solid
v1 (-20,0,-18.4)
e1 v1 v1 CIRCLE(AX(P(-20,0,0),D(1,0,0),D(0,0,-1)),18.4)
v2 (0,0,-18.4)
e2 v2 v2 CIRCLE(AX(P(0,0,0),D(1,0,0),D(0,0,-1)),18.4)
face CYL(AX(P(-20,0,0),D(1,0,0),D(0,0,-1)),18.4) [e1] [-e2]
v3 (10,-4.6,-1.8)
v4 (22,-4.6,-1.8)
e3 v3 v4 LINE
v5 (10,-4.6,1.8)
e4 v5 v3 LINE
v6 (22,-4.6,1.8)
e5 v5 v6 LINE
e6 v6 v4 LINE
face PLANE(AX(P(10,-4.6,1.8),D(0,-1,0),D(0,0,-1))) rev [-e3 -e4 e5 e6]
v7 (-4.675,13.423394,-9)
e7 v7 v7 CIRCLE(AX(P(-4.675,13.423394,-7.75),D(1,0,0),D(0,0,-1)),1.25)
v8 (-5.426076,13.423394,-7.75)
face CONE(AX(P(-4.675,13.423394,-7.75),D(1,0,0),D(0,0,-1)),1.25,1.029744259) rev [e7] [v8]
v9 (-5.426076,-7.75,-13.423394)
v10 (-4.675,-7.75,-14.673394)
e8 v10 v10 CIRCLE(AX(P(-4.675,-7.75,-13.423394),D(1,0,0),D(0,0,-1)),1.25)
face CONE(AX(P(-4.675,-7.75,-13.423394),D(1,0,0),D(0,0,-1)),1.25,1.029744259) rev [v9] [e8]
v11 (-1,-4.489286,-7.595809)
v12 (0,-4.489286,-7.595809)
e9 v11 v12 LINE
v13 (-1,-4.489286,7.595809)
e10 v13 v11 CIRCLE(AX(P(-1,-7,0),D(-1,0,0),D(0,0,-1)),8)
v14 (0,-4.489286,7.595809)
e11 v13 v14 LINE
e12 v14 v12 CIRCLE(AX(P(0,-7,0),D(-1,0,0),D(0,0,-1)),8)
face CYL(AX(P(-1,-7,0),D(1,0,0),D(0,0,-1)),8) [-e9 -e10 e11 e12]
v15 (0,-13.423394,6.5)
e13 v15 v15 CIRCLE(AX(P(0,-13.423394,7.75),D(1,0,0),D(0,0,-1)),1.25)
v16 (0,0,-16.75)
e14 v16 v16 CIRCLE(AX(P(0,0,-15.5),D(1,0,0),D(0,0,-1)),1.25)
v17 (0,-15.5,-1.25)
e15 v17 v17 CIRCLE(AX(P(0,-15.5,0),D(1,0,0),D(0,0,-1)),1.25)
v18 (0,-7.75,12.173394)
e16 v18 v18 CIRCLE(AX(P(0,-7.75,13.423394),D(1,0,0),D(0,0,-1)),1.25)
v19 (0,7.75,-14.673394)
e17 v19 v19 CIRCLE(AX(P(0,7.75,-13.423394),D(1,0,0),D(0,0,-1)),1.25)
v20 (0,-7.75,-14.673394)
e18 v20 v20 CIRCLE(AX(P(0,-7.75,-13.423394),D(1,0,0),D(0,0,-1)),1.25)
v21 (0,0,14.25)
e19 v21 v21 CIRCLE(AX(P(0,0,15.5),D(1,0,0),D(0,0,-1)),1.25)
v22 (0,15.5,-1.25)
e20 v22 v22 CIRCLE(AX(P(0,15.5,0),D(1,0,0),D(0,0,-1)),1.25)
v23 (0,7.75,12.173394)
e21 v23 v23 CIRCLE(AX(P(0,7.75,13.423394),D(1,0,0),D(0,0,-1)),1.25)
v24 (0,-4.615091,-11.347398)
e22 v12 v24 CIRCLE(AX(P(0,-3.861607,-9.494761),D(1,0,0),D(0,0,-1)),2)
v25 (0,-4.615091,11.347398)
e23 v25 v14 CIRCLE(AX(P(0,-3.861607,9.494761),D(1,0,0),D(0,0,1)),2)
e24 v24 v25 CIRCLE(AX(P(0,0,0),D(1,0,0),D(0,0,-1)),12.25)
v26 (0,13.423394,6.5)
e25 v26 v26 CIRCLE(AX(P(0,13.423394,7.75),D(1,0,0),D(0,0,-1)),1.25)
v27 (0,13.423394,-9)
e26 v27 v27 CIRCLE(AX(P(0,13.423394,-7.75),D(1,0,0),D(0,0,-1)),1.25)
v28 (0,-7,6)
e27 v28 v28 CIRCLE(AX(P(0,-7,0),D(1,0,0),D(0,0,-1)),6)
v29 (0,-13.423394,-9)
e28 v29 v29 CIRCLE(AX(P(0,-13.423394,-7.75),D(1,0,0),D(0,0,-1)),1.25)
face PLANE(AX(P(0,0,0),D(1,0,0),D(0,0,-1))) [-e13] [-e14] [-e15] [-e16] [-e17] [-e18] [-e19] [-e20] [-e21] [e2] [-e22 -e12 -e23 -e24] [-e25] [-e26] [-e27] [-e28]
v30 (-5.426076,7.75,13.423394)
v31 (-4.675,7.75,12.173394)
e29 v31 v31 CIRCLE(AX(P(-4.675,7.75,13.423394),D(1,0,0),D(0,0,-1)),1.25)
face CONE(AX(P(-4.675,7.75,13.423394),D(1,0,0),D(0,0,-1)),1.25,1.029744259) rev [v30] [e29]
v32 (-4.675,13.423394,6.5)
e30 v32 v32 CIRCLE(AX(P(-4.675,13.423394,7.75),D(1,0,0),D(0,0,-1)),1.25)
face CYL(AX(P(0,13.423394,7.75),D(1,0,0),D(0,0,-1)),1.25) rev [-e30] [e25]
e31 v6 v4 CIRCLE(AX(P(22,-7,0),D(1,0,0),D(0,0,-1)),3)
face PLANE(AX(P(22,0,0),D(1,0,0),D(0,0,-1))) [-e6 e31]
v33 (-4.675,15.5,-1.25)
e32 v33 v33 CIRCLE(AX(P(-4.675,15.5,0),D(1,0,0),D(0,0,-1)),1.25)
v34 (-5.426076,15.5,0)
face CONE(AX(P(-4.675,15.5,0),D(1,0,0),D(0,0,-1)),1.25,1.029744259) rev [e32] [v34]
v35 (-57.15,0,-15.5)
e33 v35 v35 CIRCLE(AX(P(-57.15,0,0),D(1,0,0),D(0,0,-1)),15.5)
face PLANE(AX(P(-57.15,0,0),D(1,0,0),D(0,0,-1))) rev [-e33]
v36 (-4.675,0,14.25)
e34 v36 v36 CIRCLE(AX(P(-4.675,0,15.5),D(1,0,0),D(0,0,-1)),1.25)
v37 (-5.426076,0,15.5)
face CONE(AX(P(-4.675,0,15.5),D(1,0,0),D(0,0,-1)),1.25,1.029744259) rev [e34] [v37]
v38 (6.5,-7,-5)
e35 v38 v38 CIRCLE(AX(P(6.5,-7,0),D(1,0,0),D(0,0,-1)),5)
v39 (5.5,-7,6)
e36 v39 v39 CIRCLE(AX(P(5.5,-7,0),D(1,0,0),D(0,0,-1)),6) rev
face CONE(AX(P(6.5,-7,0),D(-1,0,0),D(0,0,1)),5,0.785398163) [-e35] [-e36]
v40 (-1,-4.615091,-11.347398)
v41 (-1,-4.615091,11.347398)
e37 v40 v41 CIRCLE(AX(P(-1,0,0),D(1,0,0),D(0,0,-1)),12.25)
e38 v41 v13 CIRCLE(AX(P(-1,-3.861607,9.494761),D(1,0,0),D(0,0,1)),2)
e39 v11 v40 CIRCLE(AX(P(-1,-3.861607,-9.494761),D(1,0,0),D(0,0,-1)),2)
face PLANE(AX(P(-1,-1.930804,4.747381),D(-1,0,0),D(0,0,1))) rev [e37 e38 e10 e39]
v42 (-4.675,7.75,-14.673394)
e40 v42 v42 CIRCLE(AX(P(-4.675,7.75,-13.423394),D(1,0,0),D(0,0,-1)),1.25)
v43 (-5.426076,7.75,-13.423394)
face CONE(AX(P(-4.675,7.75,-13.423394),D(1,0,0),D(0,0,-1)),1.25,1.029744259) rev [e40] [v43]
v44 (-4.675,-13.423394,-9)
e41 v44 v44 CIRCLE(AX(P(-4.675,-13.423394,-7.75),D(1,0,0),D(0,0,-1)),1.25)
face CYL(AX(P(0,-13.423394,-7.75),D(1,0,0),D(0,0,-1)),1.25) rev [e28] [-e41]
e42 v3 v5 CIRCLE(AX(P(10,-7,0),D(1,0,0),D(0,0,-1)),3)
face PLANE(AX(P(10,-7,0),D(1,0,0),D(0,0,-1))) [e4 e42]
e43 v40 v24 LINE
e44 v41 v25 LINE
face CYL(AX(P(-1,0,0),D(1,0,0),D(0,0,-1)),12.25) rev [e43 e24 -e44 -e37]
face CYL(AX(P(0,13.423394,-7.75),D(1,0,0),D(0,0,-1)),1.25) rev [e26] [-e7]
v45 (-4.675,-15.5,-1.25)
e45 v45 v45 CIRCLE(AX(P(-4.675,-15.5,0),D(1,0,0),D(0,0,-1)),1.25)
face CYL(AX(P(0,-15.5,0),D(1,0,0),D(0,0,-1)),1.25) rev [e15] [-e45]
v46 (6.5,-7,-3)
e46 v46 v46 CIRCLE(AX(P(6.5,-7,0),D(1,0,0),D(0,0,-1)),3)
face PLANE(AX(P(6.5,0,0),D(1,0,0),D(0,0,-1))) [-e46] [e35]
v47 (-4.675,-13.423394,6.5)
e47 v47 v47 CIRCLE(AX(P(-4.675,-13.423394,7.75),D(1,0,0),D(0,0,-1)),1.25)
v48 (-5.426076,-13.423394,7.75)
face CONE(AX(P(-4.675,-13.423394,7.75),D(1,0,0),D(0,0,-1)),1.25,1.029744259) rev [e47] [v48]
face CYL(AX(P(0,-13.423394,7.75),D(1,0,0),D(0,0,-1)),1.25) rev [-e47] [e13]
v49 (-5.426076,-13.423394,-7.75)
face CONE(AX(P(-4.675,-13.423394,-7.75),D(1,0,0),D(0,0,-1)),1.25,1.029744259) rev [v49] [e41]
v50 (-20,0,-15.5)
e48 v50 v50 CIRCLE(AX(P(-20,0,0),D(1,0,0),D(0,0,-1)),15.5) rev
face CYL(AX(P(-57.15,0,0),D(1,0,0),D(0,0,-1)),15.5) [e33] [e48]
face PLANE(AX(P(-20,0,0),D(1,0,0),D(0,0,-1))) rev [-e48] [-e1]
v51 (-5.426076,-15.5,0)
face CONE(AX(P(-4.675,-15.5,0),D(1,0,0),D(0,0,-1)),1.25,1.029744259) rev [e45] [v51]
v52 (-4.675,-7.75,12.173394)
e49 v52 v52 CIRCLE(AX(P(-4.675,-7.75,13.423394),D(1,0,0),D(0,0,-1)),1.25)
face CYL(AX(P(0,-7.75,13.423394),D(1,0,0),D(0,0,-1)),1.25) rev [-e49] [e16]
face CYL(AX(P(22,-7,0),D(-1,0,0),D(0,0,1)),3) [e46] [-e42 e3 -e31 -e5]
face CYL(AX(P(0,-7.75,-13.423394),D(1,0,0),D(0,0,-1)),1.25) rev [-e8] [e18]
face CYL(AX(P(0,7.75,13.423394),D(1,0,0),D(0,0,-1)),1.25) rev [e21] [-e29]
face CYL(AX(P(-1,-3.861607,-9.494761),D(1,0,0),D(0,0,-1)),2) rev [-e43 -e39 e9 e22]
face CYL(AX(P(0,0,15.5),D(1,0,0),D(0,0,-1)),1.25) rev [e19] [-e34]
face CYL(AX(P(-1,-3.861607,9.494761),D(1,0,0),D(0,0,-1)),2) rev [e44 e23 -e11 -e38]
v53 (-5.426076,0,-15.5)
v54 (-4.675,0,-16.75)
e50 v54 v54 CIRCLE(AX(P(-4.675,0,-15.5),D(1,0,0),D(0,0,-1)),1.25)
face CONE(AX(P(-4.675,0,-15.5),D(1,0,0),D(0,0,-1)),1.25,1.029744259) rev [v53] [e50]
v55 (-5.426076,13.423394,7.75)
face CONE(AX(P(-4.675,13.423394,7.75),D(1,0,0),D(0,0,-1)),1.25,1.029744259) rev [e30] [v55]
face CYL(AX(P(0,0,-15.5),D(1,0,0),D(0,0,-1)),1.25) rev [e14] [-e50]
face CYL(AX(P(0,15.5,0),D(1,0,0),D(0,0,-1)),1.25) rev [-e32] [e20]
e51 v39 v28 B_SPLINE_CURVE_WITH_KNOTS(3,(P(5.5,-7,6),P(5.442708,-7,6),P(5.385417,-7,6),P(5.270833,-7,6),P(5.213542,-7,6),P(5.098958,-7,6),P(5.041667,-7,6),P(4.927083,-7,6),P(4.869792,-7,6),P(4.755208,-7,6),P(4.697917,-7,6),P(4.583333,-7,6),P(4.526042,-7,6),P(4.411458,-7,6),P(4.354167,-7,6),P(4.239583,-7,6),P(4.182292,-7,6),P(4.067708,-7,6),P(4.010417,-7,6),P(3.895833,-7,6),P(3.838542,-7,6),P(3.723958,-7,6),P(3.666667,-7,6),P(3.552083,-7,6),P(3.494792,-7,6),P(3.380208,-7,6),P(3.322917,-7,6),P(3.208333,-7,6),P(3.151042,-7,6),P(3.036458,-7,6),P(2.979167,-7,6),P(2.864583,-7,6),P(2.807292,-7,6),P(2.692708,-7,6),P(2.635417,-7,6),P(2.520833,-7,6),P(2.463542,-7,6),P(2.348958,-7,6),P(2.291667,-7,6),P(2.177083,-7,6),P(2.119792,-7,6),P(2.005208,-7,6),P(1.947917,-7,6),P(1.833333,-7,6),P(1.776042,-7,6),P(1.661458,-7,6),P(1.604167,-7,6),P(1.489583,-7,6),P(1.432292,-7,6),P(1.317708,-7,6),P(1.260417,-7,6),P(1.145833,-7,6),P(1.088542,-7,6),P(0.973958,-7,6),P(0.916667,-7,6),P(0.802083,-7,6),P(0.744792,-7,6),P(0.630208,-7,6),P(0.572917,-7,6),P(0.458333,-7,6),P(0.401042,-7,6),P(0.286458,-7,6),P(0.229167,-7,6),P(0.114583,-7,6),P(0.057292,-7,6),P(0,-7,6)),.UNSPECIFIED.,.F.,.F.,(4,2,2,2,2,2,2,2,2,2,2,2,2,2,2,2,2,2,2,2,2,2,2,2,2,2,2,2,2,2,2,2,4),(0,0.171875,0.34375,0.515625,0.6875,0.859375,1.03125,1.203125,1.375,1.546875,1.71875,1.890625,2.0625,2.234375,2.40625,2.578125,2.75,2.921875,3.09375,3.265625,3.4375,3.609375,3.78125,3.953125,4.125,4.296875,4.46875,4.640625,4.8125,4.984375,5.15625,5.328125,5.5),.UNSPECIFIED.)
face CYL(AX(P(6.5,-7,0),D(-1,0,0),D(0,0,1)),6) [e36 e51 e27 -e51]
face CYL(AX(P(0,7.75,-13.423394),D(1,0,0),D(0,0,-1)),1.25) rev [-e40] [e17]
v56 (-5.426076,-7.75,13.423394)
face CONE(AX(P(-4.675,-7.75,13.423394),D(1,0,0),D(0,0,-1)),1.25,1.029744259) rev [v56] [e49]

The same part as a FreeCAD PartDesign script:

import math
import FreeCAD as App
import Part
import Sketcher
from FreeCAD import Vector
Q = App.Units.Quantity


def edges_at(feature, points):
    """Names of the edges that pass closest to the given points."""
    edges = feature.Shape.Edges
    near = lambda p: min(range(len(edges)), key=lambda i: edges[i].distToShape(Part.Vertex(*p))[0])
    return sorted({f"Edge{near(p) + 1}" for p in points})

doc = App.newDocument("Part")
params = doc.addObject("Spreadsheet::Sheet", "Params")
for row, (alias, value) in enumerate([
    ("sketch1_diameter", "12 mm"),
    ("sketch1_diameter2", "6 mm"),
    ("pad1_length", "6.5 mm"),
    ("sketch2_diameter", "6 mm"),
    ("pad2_length", "22 mm"),
    ("sketch3_diameter", "36.8 mm"),
    ("pad3_length", "20 mm"),
    ("sketch4_diameter", "31 mm"),
    ("pad4_length", "57.15 mm"),
    ("sketch5_diameter", "2.5 mm"),
    ("hole_diameter", "2.5 mm"),
    ("hole_depth", "4.675 mm"),
    ("sketch6_radius", "2 mm"),
    ("sketch6_radius2", "8 mm"),
    ("sketch6_radius3", "12.25 mm"),
    ("pocket1_length", "1 mm"),
    ("sketch7_radius", "3 mm"),
    ("sketch7_height", "3.6 mm"),
    ("pocket2_length", "12 mm"),
    ("chamfer_size", "1 mm"),
], start=1):
    params.set(f"A{row}", alias)
    params.set(f"B{row}", "=" + value)
    params.setAlias(f"B{row}", alias)

body = doc.addObject("PartDesign::Body", "Body")

# Sketch on YZ plane
sketch1 = doc.addObject("Sketcher::SketchObject", "Sketch")
body.addObject(sketch1)
sketch1.AttachmentSupport = (doc.YZ_Plane, [""])
sketch1.MapMode = "FlatFace"
sketch1.addGeometry(Part.Circle(Vector(-7, 0, 0), Vector(0, 0, 1), 6), False)
sketch1.addGeometry(Part.Circle(Vector(-7, 0, 0), Vector(0, 0, 1), 3), False)
sketch1.addConstraint(Sketcher.Constraint("Coincident", 1, 3, 0, 3))
sketch1.addConstraint(Sketcher.Constraint("PointOnObject", 0, 3, -1))
sketch1.addConstraint(Sketcher.Constraint("Diameter", 0, Q("12 mm")))
sketch1.addConstraint(Sketcher.Constraint("Diameter", 1, Q("6 mm")))
sketch1.addConstraint(Sketcher.Constraint("DistanceX", 0, 3, -1, 1, Q("7 mm")))
sketch1.setExpression("Constraints[2]", "Params.sketch1_diameter")
sketch1.setExpression("Constraints[3]", "Params.sketch1_diameter2")
pad1 = doc.addObject("PartDesign::Pad", "Pad")
body.addObject(pad1)
pad1.Profile = sketch1
pad1.setExpression("Length", "Params.pad1_length")

# Sketch on YZ plane
sketch2 = doc.addObject("Sketcher::SketchObject", "Sketch001")
body.addObject(sketch2)
sketch2.AttachmentSupport = (doc.YZ_Plane, [""])
sketch2.MapMode = "FlatFace"
sketch2.addGeometry(Part.Circle(Vector(-7, 0, 0), Vector(0, 0, 1), 3), False)
sketch2.addConstraint(Sketcher.Constraint("PointOnObject", 0, 3, -1))
sketch2.addConstraint(Sketcher.Constraint("Diameter", 0, Q("6 mm")))
sketch2.addConstraint(Sketcher.Constraint("DistanceX", 0, 3, -1, 1, Q("7 mm")))
sketch2.setExpression("Constraints[1]", "Params.sketch2_diameter")
pad2 = doc.addObject("PartDesign::Pad", "Pad001")
body.addObject(pad2)
pad2.Profile = sketch2
pad2.setExpression("Length", "Params.pad2_length")
body2 = doc.addObject("PartDesign::Body", "Body001")

# Sketch on YZ plane
sketch3 = doc.addObject("Sketcher::SketchObject", "Sketch002")
body2.addObject(sketch3)
sketch3.AttachmentSupport = (doc.getObject("YZ_Plane001"), [""])
sketch3.MapMode = "FlatFace"
sketch3.addGeometry(Part.Circle(Vector(0, 0, 0), Vector(0, 0, 1), 18), False)
sketch3.addConstraint(Sketcher.Constraint("Coincident", 0, 3, -1, 1))
sketch3.addConstraint(Sketcher.Constraint("Diameter", 0, Q("36.8 mm")))
sketch3.setExpression("Constraints[1]", "Params.sketch3_diameter")
pad3 = doc.addObject("PartDesign::Pad", "Pad002")
body2.addObject(pad3)
pad3.Profile = sketch3
pad3.setExpression("Length", "Params.pad3_length")
pad3.Reversed = True
doc.recompute()

boolean = doc.addObject("PartDesign::Boolean", "Boolean")
body.addObject(boolean)
boolean.Type = "Fuse"
boolean.addObjects([body2])

# Sketch on YZ plane
sketch4 = doc.addObject("Sketcher::SketchObject", "Sketch003")
body.addObject(sketch4)
sketch4.AttachmentSupport = (doc.YZ_Plane, [""])
sketch4.MapMode = "FlatFace"
sketch4.AttachmentOffset = App.Placement(Vector(0, 0, -57.15), App.Rotation())
sketch4.addGeometry(Part.Circle(Vector(0, 0, 0), Vector(0, 0, 1), 16), False)
sketch4.addConstraint(Sketcher.Constraint("Coincident", 0, 3, -1, 1))
sketch4.addConstraint(Sketcher.Constraint("Diameter", 0, Q("31 mm")))
sketch4.setExpression("Constraints[1]", "Params.sketch4_diameter")
pad4 = doc.addObject("PartDesign::Pad", "Pad003")
body.addObject(pad4)
pad4.Profile = sketch4
pad4.setExpression("Length", "Params.pad4_length")

# Sketch on YZ plane
sketch5 = doc.addObject("Sketcher::SketchObject", "Sketch004")
body.addObject(sketch5)
sketch5.AttachmentSupport = (doc.YZ_Plane, [""])
sketch5.MapMode = "FlatFace"
sketch5.addGeometry(Part.Circle(Vector(7.8, 13.4, 0), Vector(0, 0, 1), 1.2), False)
sketch5.addGeometry(Part.Circle(Vector(0, 15.5, 0), Vector(0, 0, 1), 1.2), False)
sketch5.addGeometry(Part.Circle(Vector(-7.8, 13.4, 0), Vector(0, 0, 1), 1.2), False)
sketch5.addGeometry(Part.Circle(Vector(-13.4, 7.8, 0), Vector(0, 0, 1), 1.2), False)
sketch5.addGeometry(Part.Circle(Vector(-15.5, 0, 0), Vector(0, 0, 1), 1.2), False)
sketch5.addGeometry(Part.Circle(Vector(-13.4, -7.8, 0), Vector(0, 0, 1), 1.2), False)
sketch5.addGeometry(Part.Circle(Vector(-7.8, -13.4, 0), Vector(0, 0, 1), 1.2), False)
sketch5.addGeometry(Part.Circle(Vector(0, -15.5, 0), Vector(0, 0, 1), 1.2), False)
sketch5.addGeometry(Part.Circle(Vector(7.8, -13.4, 0), Vector(0, 0, 1), 1.2), False)
sketch5.addGeometry(Part.Circle(Vector(13.4, -7.8, 0), Vector(0, 0, 1), 1.2), False)
sketch5.addGeometry(Part.Circle(Vector(15.5, 0, 0), Vector(0, 0, 1), 1.2), False)
sketch5.addGeometry(Part.Circle(Vector(13.4, 7.8, 0), Vector(0, 0, 1), 1.2), False)
sketch5.addConstraint(Sketcher.Constraint("Equal", 0, 1))
sketch5.addConstraint(Sketcher.Constraint("Equal", 1, 2))
sketch5.addConstraint(Sketcher.Constraint("Equal", 2, 3))
sketch5.addConstraint(Sketcher.Constraint("Equal", 3, 4))
sketch5.addConstraint(Sketcher.Constraint("Equal", 4, 5))
sketch5.addConstraint(Sketcher.Constraint("Equal", 5, 6))
sketch5.addConstraint(Sketcher.Constraint("Equal", 6, 7))
sketch5.addConstraint(Sketcher.Constraint("Equal", 7, 8))
sketch5.addConstraint(Sketcher.Constraint("Equal", 8, 9))
sketch5.addConstraint(Sketcher.Constraint("Equal", 9, 10))
sketch5.addConstraint(Sketcher.Constraint("Equal", 10, 11))
sketch5.addConstraint(Sketcher.Constraint("Symmetric", 0, 3, 6, 3, -1, 1))
sketch5.addConstraint(Sketcher.Constraint("Symmetric", 1, 3, 7, 3, -1, 1))
sketch5.addConstraint(Sketcher.Constraint("Symmetric", 2, 3, 8, 3, -1, 1))
sketch5.addConstraint(Sketcher.Constraint("Symmetric", 3, 3, 9, 3, -1, 1))
sketch5.addConstraint(Sketcher.Constraint("Symmetric", 4, 3, 10, 3, -1, 1))
sketch5.addConstraint(Sketcher.Constraint("Symmetric", 5, 3, 11, 3, -1, 1))
sketch5.addConstraint(Sketcher.Constraint("Symmetric", 0, 3, 2, 3, -2))
sketch5.addConstraint(Sketcher.Constraint("Symmetric", 5, 3, 9, 3, -2))
sketch5.addConstraint(Sketcher.Constraint("PointOnObject", 1, 3, -2))
sketch5.addConstraint(Sketcher.Constraint("PointOnObject", 4, 3, -1))
sketch5.addConstraint(Sketcher.Constraint("Diameter", 0, Q("2.5 mm")))
sketch5.addConstraint(Sketcher.Constraint("DistanceY", -1, 1, 1, 3, Q("15.5 mm")))
sketch5.addConstraint(Sketcher.Constraint("DistanceX", 4, 3, -1, 1, Q("15.5 mm")))
sketch5.addConstraint(Sketcher.Constraint("DistanceX", 2, 3, 0, 3, Q("15.5 mm")))
sketch5.addConstraint(Sketcher.Constraint("DistanceY", 5, 3, 3, 3, Q("15.5 mm")))
sketch5.addConstraint(Sketcher.Constraint("DistanceY", -1, 1, 0, 3, Q("13.423394 mm")))
sketch5.addConstraint(Sketcher.Constraint("DistanceX", 3, 3, -1, 1, Q("13.423394 mm")))
sketch5.setExpression("Constraints[21]", "Params.sketch5_diameter")
doc.recompute()
hole = doc.addObject("PartDesign::Hole", "Hole")
body.addObject(hole)
hole.Profile = sketch5
hole.ThreadType = "None"
hole.setExpression("Diameter", "Params.hole_diameter")
hole.DepthType = "Dimension"
hole.setExpression("Depth", "Params.hole_depth")
hole.DrillPoint = "Angled"
hole.DrillPointAngle = 118

# Sketch on YZ plane
sketch6 = doc.addObject("Sketcher::SketchObject", "Sketch005")
body.addObject(sketch6)
sketch6.AttachmentSupport = (doc.YZ_Plane, [""])
sketch6.MapMode = "FlatFace"
sketch6.addGeometry(Part.ArcOfCircle(Part.Circle(Vector(0, 0, 0), Vector(0, 0, 1), 12.2), math.radians(-112), math.radians(112)), False)
sketch6.addGeometry(Part.ArcOfCircle(Part.Circle(Vector(-3.9, 9.5, 0), Vector(0, 0, 1), 2), math.radians(112), math.radians(252)), False)
sketch6.addGeometry(Part.ArcOfCircle(Part.Circle(Vector(-7, 0, 0), Vector(0, 0, 1), 8), math.radians(-72), math.radians(72)), False)
sketch6.addGeometry(Part.ArcOfCircle(Part.Circle(Vector(-3.9, -9.5, 0), Vector(0, 0, 1), 2), math.radians(108), math.radians(248)), False)
sketch6.addConstraint(Sketcher.Constraint("Tangent", 0, 2, 1, 1))
sketch6.addConstraint(Sketcher.Constraint("Tangent", 1, 2, 2, 2))
sketch6.addConstraint(Sketcher.Constraint("Tangent", 2, 1, 3, 1))
sketch6.addConstraint(Sketcher.Constraint("Tangent", 3, 2, 0, 1))
sketch6.addConstraint(Sketcher.Constraint("Coincident", 0, 3, -1, 1))
sketch6.addConstraint(Sketcher.Constraint("Equal", 1, 3))
sketch6.addConstraint(Sketcher.Constraint("PointOnObject", 2, 3, -1))
sketch6.addConstraint(Sketcher.Constraint("Radius", 1, Q("2 mm")))
sketch6.addConstraint(Sketcher.Constraint("Radius", 2, Q("8 mm")))
sketch6.addConstraint(Sketcher.Constraint("Radius", 0, Q("12.25 mm")))
sketch6.addConstraint(Sketcher.Constraint("DistanceX", 2, 3, -1, 1, Q("7 mm")))
sketch6.setExpression("Constraints[7]", "Params.sketch6_radius")
sketch6.setExpression("Constraints[8]", "Params.sketch6_radius2")
sketch6.setExpression("Constraints[9]", "Params.sketch6_radius3")
pocket1 = doc.addObject("PartDesign::Pocket", "Pocket")
body.addObject(pocket1)
pocket1.Profile = sketch6
pocket1.setExpression("Length", "Params.pocket1_length")

# Sketch on YZ plane
sketch7 = doc.addObject("Sketcher::SketchObject", "Sketch006")
body.addObject(sketch7)
sketch7.AttachmentSupport = (doc.YZ_Plane, [""])
sketch7.MapMode = "FlatFace"
sketch7.AttachmentOffset = App.Placement(Vector(0, 0, 10), App.Rotation())
sketch7.addGeometry(Part.LineSegment(Vector(-4.6, 1.8, 0), Vector(-4.6, -1.8, 0)), False)
sketch7.addGeometry(Part.ArcOfCircle(Part.Circle(Vector(-7, 0, 0), Vector(0, 0, 1), 3), math.radians(-37), math.radians(37)), False)
sketch7.addConstraint(Sketcher.Constraint("Coincident", 0, 1, 1, 2))
sketch7.addConstraint(Sketcher.Constraint("Coincident", 1, 1, 0, 2))
sketch7.addConstraint(Sketcher.Constraint("Vertical", 0))
sketch7.addConstraint(Sketcher.Constraint("PointOnObject", 1, 3, -1))
sketch7.addConstraint(Sketcher.Constraint("Radius", 1, Q("3 mm")))
sketch7.addConstraint(Sketcher.Constraint("DistanceY", 0, 2, 0, 1, Q("3.6 mm")))
sketch7.addConstraint(Sketcher.Constraint("DistanceX", 1, 3, -1, 1, Q("7 mm")))
sketch7.setExpression("Constraints[4]", "Params.sketch7_radius")
sketch7.setExpression("Constraints[5]", "Params.sketch7_height")
pocket2 = doc.addObject("PartDesign::Pocket", "Pocket001")
body.addObject(pocket2)
pocket2.Profile = sketch7
pocket2.setExpression("Length", "Params.pocket2_length")
pocket2.Reversed = True
doc.recompute()

chamfer = doc.addObject("PartDesign::Chamfer", "Chamfer")
body.addObject(chamfer)
chamfer.Base = (pocket2, edges_at(pocket2, [(6.5, -7, -6)]))
chamfer.setExpression("Size", "Params.chamfer_size")

doc.recompute()
